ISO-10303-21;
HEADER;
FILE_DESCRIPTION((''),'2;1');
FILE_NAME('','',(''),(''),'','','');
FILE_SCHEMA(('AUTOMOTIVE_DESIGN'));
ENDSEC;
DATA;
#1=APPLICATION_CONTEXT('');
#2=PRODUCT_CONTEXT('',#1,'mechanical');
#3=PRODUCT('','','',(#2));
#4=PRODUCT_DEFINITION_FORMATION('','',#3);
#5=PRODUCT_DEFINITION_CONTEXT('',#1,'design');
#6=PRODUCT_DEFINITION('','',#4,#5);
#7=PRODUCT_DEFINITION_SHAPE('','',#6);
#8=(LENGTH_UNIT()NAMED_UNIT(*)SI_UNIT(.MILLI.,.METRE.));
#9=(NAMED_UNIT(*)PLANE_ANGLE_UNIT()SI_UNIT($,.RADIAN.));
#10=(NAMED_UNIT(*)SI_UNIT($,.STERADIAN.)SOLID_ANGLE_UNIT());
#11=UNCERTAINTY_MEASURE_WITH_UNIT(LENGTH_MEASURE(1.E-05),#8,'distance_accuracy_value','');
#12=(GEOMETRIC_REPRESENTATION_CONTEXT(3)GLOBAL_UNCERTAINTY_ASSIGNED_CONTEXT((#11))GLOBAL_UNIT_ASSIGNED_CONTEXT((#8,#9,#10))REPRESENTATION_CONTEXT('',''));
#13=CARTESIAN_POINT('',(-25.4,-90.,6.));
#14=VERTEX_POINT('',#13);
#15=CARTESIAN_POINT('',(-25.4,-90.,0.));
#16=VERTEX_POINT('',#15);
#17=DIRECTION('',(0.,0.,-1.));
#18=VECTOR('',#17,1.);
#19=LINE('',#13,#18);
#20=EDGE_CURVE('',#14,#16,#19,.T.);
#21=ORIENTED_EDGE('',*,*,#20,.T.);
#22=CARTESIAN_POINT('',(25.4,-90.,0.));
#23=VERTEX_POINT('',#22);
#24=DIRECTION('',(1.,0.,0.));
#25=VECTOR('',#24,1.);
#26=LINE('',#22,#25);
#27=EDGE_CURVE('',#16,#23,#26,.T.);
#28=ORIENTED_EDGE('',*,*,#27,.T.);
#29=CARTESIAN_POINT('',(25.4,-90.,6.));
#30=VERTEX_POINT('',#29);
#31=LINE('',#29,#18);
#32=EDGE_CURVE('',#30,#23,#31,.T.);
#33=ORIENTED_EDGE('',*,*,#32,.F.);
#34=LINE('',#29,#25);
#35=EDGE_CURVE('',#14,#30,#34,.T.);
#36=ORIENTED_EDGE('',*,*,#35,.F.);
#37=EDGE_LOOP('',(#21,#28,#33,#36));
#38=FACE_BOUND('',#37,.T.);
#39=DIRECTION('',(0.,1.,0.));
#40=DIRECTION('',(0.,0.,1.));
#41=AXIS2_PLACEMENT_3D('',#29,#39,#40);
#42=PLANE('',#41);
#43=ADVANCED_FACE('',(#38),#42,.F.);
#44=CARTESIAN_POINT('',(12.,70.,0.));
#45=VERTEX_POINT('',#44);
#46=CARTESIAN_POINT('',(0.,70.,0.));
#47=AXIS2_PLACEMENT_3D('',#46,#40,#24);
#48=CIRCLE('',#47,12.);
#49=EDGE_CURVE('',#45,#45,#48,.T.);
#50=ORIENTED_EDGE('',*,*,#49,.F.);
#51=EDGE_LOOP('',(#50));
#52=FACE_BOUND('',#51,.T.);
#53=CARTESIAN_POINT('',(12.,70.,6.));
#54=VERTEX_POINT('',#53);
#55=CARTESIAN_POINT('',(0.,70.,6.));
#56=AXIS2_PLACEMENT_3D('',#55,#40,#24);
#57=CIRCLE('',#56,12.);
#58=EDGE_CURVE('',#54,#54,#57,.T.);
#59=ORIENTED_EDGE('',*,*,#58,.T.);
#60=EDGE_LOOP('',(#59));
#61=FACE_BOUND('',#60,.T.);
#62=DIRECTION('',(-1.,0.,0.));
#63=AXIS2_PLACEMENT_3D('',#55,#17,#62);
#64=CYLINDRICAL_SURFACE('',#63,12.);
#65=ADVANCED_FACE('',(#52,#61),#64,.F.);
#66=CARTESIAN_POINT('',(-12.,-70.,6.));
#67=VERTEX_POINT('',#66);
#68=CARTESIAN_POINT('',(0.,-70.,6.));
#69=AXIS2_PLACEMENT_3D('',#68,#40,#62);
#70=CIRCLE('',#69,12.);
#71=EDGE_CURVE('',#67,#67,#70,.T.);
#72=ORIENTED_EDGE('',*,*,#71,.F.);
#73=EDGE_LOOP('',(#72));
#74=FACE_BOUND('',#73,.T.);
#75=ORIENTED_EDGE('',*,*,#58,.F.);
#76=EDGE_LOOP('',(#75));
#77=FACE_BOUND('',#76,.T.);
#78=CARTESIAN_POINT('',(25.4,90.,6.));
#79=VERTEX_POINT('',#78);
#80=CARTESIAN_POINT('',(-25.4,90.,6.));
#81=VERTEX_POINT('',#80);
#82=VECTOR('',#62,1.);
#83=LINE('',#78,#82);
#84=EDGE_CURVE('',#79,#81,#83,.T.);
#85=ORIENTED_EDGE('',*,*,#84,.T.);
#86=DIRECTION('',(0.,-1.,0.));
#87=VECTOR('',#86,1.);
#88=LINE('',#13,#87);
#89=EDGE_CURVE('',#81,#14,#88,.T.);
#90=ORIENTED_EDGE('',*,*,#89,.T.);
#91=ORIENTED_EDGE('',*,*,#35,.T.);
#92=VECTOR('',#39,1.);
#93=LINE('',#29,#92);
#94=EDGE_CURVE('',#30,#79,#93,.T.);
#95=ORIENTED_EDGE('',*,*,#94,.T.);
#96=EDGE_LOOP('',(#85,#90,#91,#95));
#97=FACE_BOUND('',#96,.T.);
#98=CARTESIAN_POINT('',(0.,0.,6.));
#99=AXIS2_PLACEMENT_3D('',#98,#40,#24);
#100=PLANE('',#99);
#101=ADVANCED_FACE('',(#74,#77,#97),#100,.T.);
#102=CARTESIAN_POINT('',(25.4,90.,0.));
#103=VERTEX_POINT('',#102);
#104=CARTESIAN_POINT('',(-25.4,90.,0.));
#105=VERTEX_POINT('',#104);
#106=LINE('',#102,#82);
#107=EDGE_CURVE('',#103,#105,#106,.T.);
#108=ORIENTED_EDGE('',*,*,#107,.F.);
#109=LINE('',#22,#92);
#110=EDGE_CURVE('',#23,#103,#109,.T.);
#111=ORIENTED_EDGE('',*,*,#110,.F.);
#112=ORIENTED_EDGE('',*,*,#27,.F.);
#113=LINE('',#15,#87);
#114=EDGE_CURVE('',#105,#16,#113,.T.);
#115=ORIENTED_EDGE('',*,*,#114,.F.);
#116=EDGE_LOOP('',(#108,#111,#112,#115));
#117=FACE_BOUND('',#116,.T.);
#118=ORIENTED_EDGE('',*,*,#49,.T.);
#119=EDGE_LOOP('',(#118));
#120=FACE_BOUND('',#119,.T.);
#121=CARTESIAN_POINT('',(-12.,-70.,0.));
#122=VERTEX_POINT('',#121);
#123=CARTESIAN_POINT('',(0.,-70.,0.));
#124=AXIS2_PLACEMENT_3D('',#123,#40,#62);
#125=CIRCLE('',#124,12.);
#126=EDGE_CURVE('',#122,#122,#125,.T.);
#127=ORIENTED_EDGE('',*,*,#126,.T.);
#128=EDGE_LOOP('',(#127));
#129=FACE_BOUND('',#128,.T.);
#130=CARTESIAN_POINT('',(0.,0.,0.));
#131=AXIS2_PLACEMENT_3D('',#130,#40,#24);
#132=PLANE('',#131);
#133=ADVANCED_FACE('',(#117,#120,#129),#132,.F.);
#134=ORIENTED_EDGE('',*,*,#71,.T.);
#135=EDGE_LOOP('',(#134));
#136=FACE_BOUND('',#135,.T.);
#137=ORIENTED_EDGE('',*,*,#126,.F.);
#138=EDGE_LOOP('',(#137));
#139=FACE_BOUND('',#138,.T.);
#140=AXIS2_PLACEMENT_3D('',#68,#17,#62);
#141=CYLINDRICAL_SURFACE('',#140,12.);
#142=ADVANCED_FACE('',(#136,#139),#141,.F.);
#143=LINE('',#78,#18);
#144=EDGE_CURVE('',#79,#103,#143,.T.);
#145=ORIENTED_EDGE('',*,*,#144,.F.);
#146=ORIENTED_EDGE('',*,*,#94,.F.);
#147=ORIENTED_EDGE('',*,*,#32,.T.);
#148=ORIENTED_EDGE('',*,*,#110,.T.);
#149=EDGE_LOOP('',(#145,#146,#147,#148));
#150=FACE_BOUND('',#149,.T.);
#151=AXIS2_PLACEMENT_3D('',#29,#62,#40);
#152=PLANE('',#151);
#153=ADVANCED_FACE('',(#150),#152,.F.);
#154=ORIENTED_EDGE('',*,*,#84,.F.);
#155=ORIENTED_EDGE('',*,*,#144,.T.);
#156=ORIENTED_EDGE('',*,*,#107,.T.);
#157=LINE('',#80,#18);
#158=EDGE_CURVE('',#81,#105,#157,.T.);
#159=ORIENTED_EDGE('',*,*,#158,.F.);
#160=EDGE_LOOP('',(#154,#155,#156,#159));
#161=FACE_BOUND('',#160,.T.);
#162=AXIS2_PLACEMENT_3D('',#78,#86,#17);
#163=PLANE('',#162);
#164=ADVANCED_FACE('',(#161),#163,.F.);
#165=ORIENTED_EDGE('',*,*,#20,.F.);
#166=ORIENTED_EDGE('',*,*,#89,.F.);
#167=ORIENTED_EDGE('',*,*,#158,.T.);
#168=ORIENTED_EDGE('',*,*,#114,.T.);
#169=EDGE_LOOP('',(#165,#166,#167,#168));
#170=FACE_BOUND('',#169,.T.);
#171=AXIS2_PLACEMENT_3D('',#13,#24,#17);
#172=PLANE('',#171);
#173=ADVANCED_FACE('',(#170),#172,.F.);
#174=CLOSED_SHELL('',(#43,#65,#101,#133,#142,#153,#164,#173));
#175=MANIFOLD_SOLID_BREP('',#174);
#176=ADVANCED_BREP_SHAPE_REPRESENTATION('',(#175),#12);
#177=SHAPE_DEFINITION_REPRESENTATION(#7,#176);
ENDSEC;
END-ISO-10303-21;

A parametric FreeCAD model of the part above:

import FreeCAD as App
import Part
import Sketcher
Q = App.Units.Quantity


def add_polygon(sketch, points):
    """Adds a closed chain of lines whose ends are joined by coincident constraints."""
    first, n = sketch.GeometryCount, len(points)
    for a, b in zip(points, points[1:] + points[:1]):
        sketch.addGeometry(Part.LineSegment(App.Vector(*a, 0), App.Vector(*b, 0)), False)
    for i in range(n):
        sketch.addConstraint(Sketcher.Constraint("Coincident", first + i, 2, first + (i + 1) % n, 1))

doc = App.newDocument("Part")
body = doc.addObject("PartDesign::Body", "Body")

sketch1 = doc.addObject("Sketcher::SketchObject", "Sketch")
body.addObject(sketch1)
sketch1.AttachmentSupport = (doc.XY_Plane, [""])
sketch1.MapMode = "FlatFace"
add_polygon(sketch1, [(-25, 90), (-25, -90), (25, -90), (25, 90)])
sketch1.addGeometry(Part.Circle(App.Vector(0, -70, 0), App.Vector(0, 0, 1), 12), False)
sketch1.addGeometry(Part.Circle(App.Vector(0, 70, 0), App.Vector(0, 0, 1), 12), False)
sketch1.addConstraint([
    Sketcher.Constraint("Vertical", 0),
    Sketcher.Constraint("Horizontal", 1),
    Sketcher.Constraint("Vertical", 2),
    Sketcher.Constraint("Horizontal", 3),
    Sketcher.Constraint("Equal", 4, 5),
    Sketcher.Constraint("Symmetric", 4, 3, 5, 3, -1, 1),
    Sketcher.Constraint("Symmetric", 0, 2, 2, 2, -1, 1),
    Sketcher.Constraint("PointOnObject", 4, 3, -2),
    Sketcher.Constraint("Diameter", 4, Q("24 mm")),
    Sketcher.Constraint("DistanceY", 0, 2, 0, 1, Q("180 mm")),
    Sketcher.Constraint("DistanceX", 1, 1, 1, 2, Q("50.8 mm")),
    Sketcher.Constraint("DistanceY", 4, 3, -1, 1, Q("70 mm")),
])
pad1 = doc.addObject("PartDesign::Pad", "Pad")
body.addObject(pad1)
pad1.Profile = sketch1
pad1.Length = 6

doc.recompute()
